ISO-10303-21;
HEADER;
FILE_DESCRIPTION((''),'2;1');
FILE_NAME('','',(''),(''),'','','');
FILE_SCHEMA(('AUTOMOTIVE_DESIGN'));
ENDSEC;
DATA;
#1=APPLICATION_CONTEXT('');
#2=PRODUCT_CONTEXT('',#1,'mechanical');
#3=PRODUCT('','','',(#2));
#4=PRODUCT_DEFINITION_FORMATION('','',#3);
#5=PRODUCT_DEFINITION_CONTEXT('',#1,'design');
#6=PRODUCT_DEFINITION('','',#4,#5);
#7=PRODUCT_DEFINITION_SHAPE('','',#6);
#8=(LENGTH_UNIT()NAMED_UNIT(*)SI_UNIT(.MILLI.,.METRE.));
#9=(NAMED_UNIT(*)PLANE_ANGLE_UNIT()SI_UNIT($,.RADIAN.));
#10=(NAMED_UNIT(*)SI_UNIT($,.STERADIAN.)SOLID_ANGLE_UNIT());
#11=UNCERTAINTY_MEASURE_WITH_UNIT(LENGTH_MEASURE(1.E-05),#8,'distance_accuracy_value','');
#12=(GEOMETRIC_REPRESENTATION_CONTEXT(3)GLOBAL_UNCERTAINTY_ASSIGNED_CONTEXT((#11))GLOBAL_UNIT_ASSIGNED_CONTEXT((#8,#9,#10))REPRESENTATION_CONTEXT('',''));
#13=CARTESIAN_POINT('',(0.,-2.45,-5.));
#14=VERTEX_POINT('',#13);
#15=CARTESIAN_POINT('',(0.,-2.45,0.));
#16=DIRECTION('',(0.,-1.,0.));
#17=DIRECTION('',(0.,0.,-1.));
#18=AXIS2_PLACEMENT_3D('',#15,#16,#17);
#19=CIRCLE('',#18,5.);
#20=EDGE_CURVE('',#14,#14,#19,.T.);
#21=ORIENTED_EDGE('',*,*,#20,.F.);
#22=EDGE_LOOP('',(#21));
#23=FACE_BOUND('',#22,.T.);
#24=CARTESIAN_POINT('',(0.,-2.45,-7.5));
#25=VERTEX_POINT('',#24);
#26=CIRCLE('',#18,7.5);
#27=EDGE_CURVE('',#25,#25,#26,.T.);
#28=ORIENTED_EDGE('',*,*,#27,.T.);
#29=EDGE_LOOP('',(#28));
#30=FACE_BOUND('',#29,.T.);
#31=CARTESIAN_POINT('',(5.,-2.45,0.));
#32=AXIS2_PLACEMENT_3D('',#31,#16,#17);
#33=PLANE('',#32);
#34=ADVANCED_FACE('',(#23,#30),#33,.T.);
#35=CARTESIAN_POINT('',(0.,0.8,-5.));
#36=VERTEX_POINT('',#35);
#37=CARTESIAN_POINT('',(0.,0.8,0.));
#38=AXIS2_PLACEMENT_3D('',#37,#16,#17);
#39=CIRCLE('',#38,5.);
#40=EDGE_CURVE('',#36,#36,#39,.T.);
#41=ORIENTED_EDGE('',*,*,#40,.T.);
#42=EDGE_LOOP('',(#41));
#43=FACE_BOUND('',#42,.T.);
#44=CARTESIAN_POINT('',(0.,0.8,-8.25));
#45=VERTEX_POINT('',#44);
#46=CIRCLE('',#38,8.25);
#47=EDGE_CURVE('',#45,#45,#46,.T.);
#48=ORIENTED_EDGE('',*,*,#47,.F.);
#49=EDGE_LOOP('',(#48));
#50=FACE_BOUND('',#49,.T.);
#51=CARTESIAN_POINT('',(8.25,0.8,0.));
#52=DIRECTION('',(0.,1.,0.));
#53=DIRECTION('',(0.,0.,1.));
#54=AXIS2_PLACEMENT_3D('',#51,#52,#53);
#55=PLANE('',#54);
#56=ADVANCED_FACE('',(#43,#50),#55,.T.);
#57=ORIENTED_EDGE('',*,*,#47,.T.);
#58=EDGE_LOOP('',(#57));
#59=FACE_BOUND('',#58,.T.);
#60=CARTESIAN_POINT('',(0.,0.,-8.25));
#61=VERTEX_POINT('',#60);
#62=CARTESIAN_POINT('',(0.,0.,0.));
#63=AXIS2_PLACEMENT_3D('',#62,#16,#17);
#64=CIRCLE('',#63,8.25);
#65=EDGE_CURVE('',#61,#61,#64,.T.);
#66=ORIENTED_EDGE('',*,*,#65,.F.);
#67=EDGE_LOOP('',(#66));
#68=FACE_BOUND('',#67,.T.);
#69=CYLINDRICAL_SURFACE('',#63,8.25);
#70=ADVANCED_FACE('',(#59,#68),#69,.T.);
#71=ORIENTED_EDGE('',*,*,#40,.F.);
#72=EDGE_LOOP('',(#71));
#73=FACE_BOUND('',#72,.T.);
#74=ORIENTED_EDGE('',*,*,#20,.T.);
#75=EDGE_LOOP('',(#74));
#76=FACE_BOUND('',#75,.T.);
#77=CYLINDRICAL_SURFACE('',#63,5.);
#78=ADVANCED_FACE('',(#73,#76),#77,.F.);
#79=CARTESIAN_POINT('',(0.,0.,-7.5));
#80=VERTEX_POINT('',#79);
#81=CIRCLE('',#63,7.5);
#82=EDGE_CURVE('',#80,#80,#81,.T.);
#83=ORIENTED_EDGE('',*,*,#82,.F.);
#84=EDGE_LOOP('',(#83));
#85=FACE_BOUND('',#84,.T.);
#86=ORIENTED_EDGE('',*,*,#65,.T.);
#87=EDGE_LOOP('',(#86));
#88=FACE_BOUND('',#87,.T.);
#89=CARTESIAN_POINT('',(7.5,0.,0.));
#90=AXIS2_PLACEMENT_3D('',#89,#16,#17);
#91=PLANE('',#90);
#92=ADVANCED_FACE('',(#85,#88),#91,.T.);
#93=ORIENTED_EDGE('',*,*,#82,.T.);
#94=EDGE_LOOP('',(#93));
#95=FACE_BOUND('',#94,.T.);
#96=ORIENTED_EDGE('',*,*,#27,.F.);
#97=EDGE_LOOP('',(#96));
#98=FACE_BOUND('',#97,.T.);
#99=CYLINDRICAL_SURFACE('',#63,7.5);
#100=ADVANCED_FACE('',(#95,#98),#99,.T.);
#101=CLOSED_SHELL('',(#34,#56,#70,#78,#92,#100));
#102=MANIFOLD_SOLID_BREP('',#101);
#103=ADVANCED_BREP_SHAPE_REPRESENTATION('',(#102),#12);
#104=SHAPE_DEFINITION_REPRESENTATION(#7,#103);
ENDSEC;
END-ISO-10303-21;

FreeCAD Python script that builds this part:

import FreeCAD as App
import Part
import Sketcher
Q = App.Units.Quantity

doc = App.newDocument("Part")
body = doc.addObject("PartDesign::Body", "Body")

sketch1 = doc.addObject("Sketcher::SketchObject", "Sketch")
body.addObject(sketch1)
sketch1.AttachmentSupport = (doc.XY_Plane, [""])
sketch1.MapMode = "FlatFace"
sketch1.addGeometry([
    Part.LineSegment(App.Vector(5, 0.8, 0), App.Vector(5, -2.5, 0)),
    Part.LineSegment(App.Vector(5, -2.5, 0), App.Vector(7.5, -2.5, 0)),
    Part.LineSegment(App.Vector(7.5, -2.5, 0), App.Vector(7.5, 0, 0)),
    Part.LineSegment(App.Vector(7.5, 0, 0), App.Vector(8.2, 0, 0)),
    Part.LineSegment(App.Vector(8.2, 0, 0), App.Vector(8.2, 0.8, 0)),
    Part.LineSegment(App.Vector(8.2, 0.8, 0), App.Vector(5, 0.8, 0)),
], False)
sketch1.addConstraint([
    Sketcher.Constraint("Coincident", 0, 2, 1, 1),
    Sketcher.Constraint("Coincident", 1, 2, 2, 1),
    Sketcher.Constraint("Coincident", 2, 2, 3, 1),
    Sketcher.Constraint("Coincident", 3, 2, 4, 1),
    Sketcher.Constraint("Coincident", 4, 2, 5, 1),
    Sketcher.Constraint("Coincident", 5, 2, 0, 1),
    Sketcher.Constraint("Vertical", 0),
    Sketcher.Constraint("Horizontal", 1),
    Sketcher.Constraint("Vertical", 2),
    Sketcher.Constraint("Horizontal", 3),
    Sketcher.Constraint("Vertical", 4),
    Sketcher.Constraint("Horizontal", 5),
    Sketcher.Constraint("PointOnObject", 2, 2, -1),
    Sketcher.Constraint("Equal", 5, 0),
    Sketcher.Constraint("DistanceX", 1, 1, 1, 2, Q("2.5 mm")),
    Sketcher.Constraint("DistanceY", 4, 1, 4, 2, Q("0.8 mm")),
    Sketcher.Constraint("DistanceX", -1, 1, 0, 2, Q("5 mm")),
    Sketcher.Constraint("DistanceX", 3, 1, 3, 2, Q("0.75 mm")),
])
revolution = doc.addObject("PartDesign::Revolution", "Revolution")
body.addObject(revolution)
revolution.Profile = sketch1
revolution.ReferenceAxis = (sketch1, ["V_Axis"])
revolution.Angle = 360

doc.recompute()
